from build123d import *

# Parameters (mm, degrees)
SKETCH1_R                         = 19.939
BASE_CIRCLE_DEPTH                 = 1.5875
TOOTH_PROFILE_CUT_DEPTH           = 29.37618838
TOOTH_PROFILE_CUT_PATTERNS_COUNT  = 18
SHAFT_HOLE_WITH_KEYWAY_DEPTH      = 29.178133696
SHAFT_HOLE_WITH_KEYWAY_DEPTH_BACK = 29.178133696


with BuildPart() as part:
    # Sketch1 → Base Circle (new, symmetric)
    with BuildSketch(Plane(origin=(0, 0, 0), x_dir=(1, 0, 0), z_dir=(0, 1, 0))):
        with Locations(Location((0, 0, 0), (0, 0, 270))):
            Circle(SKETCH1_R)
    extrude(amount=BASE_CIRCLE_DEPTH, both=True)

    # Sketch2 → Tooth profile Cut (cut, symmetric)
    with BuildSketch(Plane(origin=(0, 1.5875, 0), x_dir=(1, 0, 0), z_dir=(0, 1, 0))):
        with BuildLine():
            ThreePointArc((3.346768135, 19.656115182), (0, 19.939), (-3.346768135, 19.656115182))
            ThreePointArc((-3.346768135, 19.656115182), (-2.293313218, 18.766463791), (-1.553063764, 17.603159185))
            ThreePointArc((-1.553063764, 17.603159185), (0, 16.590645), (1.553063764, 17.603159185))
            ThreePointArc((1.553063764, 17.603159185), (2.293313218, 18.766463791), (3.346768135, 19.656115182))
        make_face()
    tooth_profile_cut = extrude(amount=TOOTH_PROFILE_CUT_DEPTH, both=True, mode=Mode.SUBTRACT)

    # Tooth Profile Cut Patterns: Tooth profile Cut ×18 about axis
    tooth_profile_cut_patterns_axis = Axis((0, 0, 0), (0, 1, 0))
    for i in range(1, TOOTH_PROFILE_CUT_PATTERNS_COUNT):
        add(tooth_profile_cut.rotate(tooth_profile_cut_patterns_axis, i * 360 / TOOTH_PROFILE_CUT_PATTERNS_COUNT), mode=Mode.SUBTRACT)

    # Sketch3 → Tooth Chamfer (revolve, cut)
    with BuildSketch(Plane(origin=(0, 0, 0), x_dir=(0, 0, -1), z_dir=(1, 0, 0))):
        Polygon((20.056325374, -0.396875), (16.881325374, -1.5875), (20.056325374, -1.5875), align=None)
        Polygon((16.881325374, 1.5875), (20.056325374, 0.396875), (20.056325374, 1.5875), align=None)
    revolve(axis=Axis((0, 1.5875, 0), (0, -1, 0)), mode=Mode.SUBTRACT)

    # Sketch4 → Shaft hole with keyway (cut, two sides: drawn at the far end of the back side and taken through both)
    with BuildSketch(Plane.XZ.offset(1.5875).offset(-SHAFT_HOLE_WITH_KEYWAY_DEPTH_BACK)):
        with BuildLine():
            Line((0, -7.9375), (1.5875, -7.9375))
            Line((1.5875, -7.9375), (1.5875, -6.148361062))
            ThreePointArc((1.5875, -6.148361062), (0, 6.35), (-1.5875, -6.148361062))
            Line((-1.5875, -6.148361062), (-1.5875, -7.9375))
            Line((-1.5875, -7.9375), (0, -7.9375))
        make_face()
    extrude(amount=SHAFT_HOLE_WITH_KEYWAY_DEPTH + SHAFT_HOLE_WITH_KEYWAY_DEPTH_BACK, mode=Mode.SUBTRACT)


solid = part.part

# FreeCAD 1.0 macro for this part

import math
import FreeCAD as App
import Part
import Sketcher
Q = App.Units.Quantity


def add_polygon(sketch, points):
    """Adds a closed chain of lines whose ends are joined by coincident constraints."""
    first, n = sketch.GeometryCount, len(points)
    for a, b in zip(points, points[1:] + points[:1]):
        sketch.addGeometry(Part.LineSegment(App.Vector(*a, 0), App.Vector(*b, 0)), False)
    for i in range(n):
        sketch.addConstraint(Sketcher.Constraint("Coincident", first + i, 2, first + (i + 1) % n, 1))

doc = App.newDocument("Part")
body = doc.addObject("PartDesign::Body", "Body")

# Sketch on XZ plane
sketch1 = body.newObject("Sketcher::SketchObject", "Sketch")
sketch1.AttachmentSupport = (doc.getObject("XZ_Plane"), [""])
sketch1.MapMode = "FlatFace"
sketch1.addGeometry(Part.Circle(App.Vector(0, 0, 0), App.Vector(0, 0, 1), 19.939), False)
sketch1.addConstraint([
    Sketcher.Constraint("Coincident", 0, 3, -1, 1),
    Sketcher.Constraint("Diameter", 0, Q("1.57 in")),
])
pad1 = body.newObject("PartDesign::Pad", "Pad")
pad1.Profile = sketch1
pad1.Length = Q("0.125 in")
pad1.Midplane = True

# Sketch on XZ plane
sketch2 = body.newObject("Sketcher::SketchObject", "Sketch001")
sketch2.AttachmentSupport = (doc.getObject("XZ_Plane"), [""])
sketch2.MapMode = "FlatFace"
sketch2.AttachmentOffset = App.Placement(App.Vector(0, 0, -0.0625 * 25.4), App.Rotation())
sketch2.addGeometry([
    Part.ArcOfCircle(Part.Circle(App.Vector(0, 0, 0), App.Vector(0, 0, 1), 19.939), math.radians(-99.662857), math.radians(-80.337143)),
    Part.ArcOfCircle(Part.Circle(App.Vector(-5.735723, -15.758769, 0), App.Vector(0, 0, 1), 4.571259), math.radians(-58.49297), math.radians(-23.795617)),
    Part.ArcOfCircle(Part.Circle(App.Vector(0, -18.288, 0), App.Vector(0, 0, 1), 1.697355), math.radians(23.795617), math.radians(156.204383)),
    Part.ArcOfCircle(Part.Circle(App.Vector(5.735723, -15.758769, 0), App.Vector(0, 0, 1), 4.571259), math.radians(-156.204383), math.radians(-121.50703)),
], False)
sketch2.addConstraint([
    Sketcher.Constraint("Coincident", 0, 1, 1, 1),
    Sketcher.Constraint("Tangent", 1, 2, 2, 2),
    Sketcher.Constraint("Tangent", 2, 1, 3, 1),
    Sketcher.Constraint("Coincident", 3, 2, 0, 2),
    Sketcher.Constraint("Coincident", 0, 3, -1, 1),
    Sketcher.Constraint("Equal", 1, 3),
    Sketcher.Constraint("Symmetric", 1, 3, 3, 3, -2),
    Sketcher.Constraint("Radius", 0, Q("0.785 in")),
    Sketcher.Constraint("DistanceY", 2, 3, -1, 1, Q("0.72 in")),
    Sketcher.Constraint("Radius", 1, Q("4.571259 mm")),
    Sketcher.Constraint("Radius", 2, Q("1.697355 mm")),
    Sketcher.Constraint("DistanceY", 1, 3, -1, 1, Q("15.758769 mm")),
])
pocket1 = body.newObject("PartDesign::Pocket", "Pocket")
pocket1.Profile = sketch2
pocket1.Length = 58.752377
pocket1.Midplane = True
doc.recompute()

polarpattern = body.newObject("PartDesign::PolarPattern", "PolarPattern")
polarpattern.Originals = [pocket1]
polarpattern.Axis = (doc.getObject("Y_Axis"), [""])
polarpattern.Angle = 360
polarpattern.Occurrences = 18
body.Tip = polarpattern

# Sketch on YZ plane
sketch3 = body.newObject("Sketcher::SketchObject", "Sketch002")
sketch3.AttachmentSupport = (doc.getObject("YZ_Plane"), [""])
sketch3.MapMode = "FlatFace"
add_polygon(sketch3, [(-0.396875, -20.056325), (-1.5875, -16.881325), (-1.5875, -20.056325)])  # lines 0-2
add_polygon(sketch3, [(1.5875, -16.881325), (0.396875, -20.056325), (1.5875, -20.056325)])  # lines 3-5
sketch3.addConstraint([
    Sketcher.Constraint("Vertical", 1),
    Sketcher.Constraint("Horizontal", 2),
    Sketcher.Constraint("Horizontal", 4),
    Sketcher.Constraint("Vertical", 5),
    Sketcher.Constraint("Symmetric", 2, 2, 3, 2, -2),
    Sketcher.Constraint("Symmetric", 0, 2, 5, 2, -2),
    Sketcher.Constraint("DistanceX", 2, 1, 2, 2, Q("0.046875 in")),
    Sketcher.Constraint("DistanceY", 1, 2, 1, 1, Q("0.125 in")),
    Sketcher.Constraint("DistanceX", 0, 2, -1, 1, Q("0.0625 in")),
    Sketcher.Constraint("DistanceY", 0, 2, -1, 1, Q("16.881325 mm")),
])
groove = body.newObject("PartDesign::Groove", "Groove")
groove.Profile = sketch3
groove.ReferenceAxis = (sketch3, ["H_Axis"])
groove.Angle = 360

# Sketch on XZ plane
sketch4 = body.newObject("Sketcher::SketchObject", "Sketch003")
sketch4.AttachmentSupport = (doc.getObject("XZ_Plane"), [""])
sketch4.MapMode = "FlatFace"
sketch4.AttachmentOffset = App.Placement(App.Vector(0, 0, 0.0625 * 25.4), App.Rotation())
sketch4.addGeometry([
    Part.LineSegment(App.Vector(1.5875, -7.9375, 0), App.Vector(1.5875, -6.148361, 0)),
    Part.ArcOfCircle(Part.Circle(App.Vector(0, 0, 0), App.Vector(0, 0, 1), 6.35), math.radians(-75.522488), math.radians(255.522488)),
    Part.LineSegment(App.Vector(-1.5875, -6.148361, 0), App.Vector(-1.5875, -7.9375, 0)),
    Part.LineSegment(App.Vector(-1.5875, -7.9375, 0), App.Vector(1.5875, -7.9375, 0)),
], False)
sketch4.addConstraint([
    Sketcher.Constraint("Coincident", 0, 2, 1, 1),
    Sketcher.Constraint("Coincident", 1, 2, 2, 1),
    Sketcher.Constraint("Coincident", 2, 2, 3, 1),
    Sketcher.Constraint("Coincident", 3, 2, 0, 1),
    Sketcher.Constraint("Vertical", 0),
    Sketcher.Constraint("Vertical", 2),
    Sketcher.Constraint("Horizontal", 3),
    Sketcher.Constraint("Coincident", 1, 3, -1, 1),
    Sketcher.Constraint("Horizontal", 0, 2, 1, 2),
    Sketcher.Constraint("Radius", 1, Q("0.25 in")),
    Sketcher.Constraint("DistanceX", 3, 1, 3, 2, Q("0.125 in")),
    Sketcher.Constraint("DistanceY", 2, 2, -1, 1, Q("0.3125 in")),
])
pocket2 = body.newObject("PartDesign::Pocket", "Pocket001")
pocket2.Profile = sketch4
pocket2.Type = "ThroughAll"
pocket2.Midplane = True

doc.recompute()
